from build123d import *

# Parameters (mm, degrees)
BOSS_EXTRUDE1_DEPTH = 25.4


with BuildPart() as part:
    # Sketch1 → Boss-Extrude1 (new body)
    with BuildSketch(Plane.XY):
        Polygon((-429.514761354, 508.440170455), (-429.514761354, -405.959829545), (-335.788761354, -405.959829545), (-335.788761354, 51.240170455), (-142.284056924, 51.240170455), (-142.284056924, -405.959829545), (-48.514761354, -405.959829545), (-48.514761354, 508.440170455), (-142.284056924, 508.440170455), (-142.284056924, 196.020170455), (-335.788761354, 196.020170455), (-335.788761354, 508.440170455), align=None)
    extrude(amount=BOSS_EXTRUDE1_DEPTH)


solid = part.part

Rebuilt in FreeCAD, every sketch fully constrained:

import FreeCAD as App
import Part
import Sketcher
Q = App.Units.Quantity


def add_polygon(sketch, points):
    """Adds a closed chain of lines whose ends are joined by coincident constraints."""
    first, n = sketch.GeometryCount, len(points)
    for a, b in zip(points, points[1:] + points[:1]):
        sketch.addGeometry(Part.LineSegment(App.Vector(*a, 0), App.Vector(*b, 0)), False)
    for i in range(n):
        sketch.addConstraint(Sketcher.Constraint("Coincident", first + i, 2, first + (i + 1) % n, 1))

doc = App.newDocument("Part")
body = doc.addObject("PartDesign::Body", "Body")

sketch1 = body.newObject("Sketcher::SketchObject", "Sketch")
sketch1.AttachmentSupport = (doc.getObject("XY_Plane"), [""])
sketch1.MapMode = "FlatFace"
add_polygon(sketch1, [(-430, 508), (-430, -406), (-336, -406), (-336, 51), (-142, 51), (-142, -406), (-49, -406), (-49, 508), (-142, 508), (-142, 196), (-336, 196), (-336, 508)])
sketch1.addConstraint([
    Sketcher.Constraint("Vertical", 0),
    Sketcher.Constraint("Horizontal", 1),
    Sketcher.Constraint("Vertical", 2),
    Sketcher.Constraint("Horizontal", 3),
    Sketcher.Constraint("Vertical", 4),
    Sketcher.Constraint("Horizontal", 5),
    Sketcher.Constraint("Vertical", 6),
    Sketcher.Constraint("Horizontal", 7),
    Sketcher.Constraint("Vertical", 8),
    Sketcher.Constraint("Horizontal", 9),
    Sketcher.Constraint("Vertical", 10),
    Sketcher.Constraint("Horizontal", 11),
    Sketcher.Constraint("Horizontal", 1, 2, 4, 2),
    Sketcher.Constraint("Horizontal", 7, 2, 10, 2),
    Sketcher.Constraint("Vertical", 4, 2, 7, 2),
    Sketcher.Constraint("Vertical", 2, 2, 9, 2),
    Sketcher.Constraint("DistanceY", 0, 2, 0, 1, Q("36 in")),
    Sketcher.Constraint("DistanceY", 2, 1, 2, 2, Q("18 in")),
    Sketcher.Constraint("DistanceY", 8, 2, 8, 1, Q("12.3 in")),
    Sketcher.Constraint("DistanceX", 0, 2, 5, 2, Q("15 in")),
    Sketcher.Constraint("DistanceX", 1, 1, 1, 2, Q("3.69 in")),
    Sketcher.Constraint("DistanceX", 3, 1, 3, 2, 193.504704),
    Sketcher.Constraint("DistanceX", 0, 2, -1, 1, 429.514761),
    Sketcher.Constraint("DistanceY", 0, 2, -1, 1, 405.95983),
])
pad1 = body.newObject("PartDesign::Pad", "Pad")
pad1.Profile = sketch1
pad1.Length = Q("1 in")

doc.recompute()
